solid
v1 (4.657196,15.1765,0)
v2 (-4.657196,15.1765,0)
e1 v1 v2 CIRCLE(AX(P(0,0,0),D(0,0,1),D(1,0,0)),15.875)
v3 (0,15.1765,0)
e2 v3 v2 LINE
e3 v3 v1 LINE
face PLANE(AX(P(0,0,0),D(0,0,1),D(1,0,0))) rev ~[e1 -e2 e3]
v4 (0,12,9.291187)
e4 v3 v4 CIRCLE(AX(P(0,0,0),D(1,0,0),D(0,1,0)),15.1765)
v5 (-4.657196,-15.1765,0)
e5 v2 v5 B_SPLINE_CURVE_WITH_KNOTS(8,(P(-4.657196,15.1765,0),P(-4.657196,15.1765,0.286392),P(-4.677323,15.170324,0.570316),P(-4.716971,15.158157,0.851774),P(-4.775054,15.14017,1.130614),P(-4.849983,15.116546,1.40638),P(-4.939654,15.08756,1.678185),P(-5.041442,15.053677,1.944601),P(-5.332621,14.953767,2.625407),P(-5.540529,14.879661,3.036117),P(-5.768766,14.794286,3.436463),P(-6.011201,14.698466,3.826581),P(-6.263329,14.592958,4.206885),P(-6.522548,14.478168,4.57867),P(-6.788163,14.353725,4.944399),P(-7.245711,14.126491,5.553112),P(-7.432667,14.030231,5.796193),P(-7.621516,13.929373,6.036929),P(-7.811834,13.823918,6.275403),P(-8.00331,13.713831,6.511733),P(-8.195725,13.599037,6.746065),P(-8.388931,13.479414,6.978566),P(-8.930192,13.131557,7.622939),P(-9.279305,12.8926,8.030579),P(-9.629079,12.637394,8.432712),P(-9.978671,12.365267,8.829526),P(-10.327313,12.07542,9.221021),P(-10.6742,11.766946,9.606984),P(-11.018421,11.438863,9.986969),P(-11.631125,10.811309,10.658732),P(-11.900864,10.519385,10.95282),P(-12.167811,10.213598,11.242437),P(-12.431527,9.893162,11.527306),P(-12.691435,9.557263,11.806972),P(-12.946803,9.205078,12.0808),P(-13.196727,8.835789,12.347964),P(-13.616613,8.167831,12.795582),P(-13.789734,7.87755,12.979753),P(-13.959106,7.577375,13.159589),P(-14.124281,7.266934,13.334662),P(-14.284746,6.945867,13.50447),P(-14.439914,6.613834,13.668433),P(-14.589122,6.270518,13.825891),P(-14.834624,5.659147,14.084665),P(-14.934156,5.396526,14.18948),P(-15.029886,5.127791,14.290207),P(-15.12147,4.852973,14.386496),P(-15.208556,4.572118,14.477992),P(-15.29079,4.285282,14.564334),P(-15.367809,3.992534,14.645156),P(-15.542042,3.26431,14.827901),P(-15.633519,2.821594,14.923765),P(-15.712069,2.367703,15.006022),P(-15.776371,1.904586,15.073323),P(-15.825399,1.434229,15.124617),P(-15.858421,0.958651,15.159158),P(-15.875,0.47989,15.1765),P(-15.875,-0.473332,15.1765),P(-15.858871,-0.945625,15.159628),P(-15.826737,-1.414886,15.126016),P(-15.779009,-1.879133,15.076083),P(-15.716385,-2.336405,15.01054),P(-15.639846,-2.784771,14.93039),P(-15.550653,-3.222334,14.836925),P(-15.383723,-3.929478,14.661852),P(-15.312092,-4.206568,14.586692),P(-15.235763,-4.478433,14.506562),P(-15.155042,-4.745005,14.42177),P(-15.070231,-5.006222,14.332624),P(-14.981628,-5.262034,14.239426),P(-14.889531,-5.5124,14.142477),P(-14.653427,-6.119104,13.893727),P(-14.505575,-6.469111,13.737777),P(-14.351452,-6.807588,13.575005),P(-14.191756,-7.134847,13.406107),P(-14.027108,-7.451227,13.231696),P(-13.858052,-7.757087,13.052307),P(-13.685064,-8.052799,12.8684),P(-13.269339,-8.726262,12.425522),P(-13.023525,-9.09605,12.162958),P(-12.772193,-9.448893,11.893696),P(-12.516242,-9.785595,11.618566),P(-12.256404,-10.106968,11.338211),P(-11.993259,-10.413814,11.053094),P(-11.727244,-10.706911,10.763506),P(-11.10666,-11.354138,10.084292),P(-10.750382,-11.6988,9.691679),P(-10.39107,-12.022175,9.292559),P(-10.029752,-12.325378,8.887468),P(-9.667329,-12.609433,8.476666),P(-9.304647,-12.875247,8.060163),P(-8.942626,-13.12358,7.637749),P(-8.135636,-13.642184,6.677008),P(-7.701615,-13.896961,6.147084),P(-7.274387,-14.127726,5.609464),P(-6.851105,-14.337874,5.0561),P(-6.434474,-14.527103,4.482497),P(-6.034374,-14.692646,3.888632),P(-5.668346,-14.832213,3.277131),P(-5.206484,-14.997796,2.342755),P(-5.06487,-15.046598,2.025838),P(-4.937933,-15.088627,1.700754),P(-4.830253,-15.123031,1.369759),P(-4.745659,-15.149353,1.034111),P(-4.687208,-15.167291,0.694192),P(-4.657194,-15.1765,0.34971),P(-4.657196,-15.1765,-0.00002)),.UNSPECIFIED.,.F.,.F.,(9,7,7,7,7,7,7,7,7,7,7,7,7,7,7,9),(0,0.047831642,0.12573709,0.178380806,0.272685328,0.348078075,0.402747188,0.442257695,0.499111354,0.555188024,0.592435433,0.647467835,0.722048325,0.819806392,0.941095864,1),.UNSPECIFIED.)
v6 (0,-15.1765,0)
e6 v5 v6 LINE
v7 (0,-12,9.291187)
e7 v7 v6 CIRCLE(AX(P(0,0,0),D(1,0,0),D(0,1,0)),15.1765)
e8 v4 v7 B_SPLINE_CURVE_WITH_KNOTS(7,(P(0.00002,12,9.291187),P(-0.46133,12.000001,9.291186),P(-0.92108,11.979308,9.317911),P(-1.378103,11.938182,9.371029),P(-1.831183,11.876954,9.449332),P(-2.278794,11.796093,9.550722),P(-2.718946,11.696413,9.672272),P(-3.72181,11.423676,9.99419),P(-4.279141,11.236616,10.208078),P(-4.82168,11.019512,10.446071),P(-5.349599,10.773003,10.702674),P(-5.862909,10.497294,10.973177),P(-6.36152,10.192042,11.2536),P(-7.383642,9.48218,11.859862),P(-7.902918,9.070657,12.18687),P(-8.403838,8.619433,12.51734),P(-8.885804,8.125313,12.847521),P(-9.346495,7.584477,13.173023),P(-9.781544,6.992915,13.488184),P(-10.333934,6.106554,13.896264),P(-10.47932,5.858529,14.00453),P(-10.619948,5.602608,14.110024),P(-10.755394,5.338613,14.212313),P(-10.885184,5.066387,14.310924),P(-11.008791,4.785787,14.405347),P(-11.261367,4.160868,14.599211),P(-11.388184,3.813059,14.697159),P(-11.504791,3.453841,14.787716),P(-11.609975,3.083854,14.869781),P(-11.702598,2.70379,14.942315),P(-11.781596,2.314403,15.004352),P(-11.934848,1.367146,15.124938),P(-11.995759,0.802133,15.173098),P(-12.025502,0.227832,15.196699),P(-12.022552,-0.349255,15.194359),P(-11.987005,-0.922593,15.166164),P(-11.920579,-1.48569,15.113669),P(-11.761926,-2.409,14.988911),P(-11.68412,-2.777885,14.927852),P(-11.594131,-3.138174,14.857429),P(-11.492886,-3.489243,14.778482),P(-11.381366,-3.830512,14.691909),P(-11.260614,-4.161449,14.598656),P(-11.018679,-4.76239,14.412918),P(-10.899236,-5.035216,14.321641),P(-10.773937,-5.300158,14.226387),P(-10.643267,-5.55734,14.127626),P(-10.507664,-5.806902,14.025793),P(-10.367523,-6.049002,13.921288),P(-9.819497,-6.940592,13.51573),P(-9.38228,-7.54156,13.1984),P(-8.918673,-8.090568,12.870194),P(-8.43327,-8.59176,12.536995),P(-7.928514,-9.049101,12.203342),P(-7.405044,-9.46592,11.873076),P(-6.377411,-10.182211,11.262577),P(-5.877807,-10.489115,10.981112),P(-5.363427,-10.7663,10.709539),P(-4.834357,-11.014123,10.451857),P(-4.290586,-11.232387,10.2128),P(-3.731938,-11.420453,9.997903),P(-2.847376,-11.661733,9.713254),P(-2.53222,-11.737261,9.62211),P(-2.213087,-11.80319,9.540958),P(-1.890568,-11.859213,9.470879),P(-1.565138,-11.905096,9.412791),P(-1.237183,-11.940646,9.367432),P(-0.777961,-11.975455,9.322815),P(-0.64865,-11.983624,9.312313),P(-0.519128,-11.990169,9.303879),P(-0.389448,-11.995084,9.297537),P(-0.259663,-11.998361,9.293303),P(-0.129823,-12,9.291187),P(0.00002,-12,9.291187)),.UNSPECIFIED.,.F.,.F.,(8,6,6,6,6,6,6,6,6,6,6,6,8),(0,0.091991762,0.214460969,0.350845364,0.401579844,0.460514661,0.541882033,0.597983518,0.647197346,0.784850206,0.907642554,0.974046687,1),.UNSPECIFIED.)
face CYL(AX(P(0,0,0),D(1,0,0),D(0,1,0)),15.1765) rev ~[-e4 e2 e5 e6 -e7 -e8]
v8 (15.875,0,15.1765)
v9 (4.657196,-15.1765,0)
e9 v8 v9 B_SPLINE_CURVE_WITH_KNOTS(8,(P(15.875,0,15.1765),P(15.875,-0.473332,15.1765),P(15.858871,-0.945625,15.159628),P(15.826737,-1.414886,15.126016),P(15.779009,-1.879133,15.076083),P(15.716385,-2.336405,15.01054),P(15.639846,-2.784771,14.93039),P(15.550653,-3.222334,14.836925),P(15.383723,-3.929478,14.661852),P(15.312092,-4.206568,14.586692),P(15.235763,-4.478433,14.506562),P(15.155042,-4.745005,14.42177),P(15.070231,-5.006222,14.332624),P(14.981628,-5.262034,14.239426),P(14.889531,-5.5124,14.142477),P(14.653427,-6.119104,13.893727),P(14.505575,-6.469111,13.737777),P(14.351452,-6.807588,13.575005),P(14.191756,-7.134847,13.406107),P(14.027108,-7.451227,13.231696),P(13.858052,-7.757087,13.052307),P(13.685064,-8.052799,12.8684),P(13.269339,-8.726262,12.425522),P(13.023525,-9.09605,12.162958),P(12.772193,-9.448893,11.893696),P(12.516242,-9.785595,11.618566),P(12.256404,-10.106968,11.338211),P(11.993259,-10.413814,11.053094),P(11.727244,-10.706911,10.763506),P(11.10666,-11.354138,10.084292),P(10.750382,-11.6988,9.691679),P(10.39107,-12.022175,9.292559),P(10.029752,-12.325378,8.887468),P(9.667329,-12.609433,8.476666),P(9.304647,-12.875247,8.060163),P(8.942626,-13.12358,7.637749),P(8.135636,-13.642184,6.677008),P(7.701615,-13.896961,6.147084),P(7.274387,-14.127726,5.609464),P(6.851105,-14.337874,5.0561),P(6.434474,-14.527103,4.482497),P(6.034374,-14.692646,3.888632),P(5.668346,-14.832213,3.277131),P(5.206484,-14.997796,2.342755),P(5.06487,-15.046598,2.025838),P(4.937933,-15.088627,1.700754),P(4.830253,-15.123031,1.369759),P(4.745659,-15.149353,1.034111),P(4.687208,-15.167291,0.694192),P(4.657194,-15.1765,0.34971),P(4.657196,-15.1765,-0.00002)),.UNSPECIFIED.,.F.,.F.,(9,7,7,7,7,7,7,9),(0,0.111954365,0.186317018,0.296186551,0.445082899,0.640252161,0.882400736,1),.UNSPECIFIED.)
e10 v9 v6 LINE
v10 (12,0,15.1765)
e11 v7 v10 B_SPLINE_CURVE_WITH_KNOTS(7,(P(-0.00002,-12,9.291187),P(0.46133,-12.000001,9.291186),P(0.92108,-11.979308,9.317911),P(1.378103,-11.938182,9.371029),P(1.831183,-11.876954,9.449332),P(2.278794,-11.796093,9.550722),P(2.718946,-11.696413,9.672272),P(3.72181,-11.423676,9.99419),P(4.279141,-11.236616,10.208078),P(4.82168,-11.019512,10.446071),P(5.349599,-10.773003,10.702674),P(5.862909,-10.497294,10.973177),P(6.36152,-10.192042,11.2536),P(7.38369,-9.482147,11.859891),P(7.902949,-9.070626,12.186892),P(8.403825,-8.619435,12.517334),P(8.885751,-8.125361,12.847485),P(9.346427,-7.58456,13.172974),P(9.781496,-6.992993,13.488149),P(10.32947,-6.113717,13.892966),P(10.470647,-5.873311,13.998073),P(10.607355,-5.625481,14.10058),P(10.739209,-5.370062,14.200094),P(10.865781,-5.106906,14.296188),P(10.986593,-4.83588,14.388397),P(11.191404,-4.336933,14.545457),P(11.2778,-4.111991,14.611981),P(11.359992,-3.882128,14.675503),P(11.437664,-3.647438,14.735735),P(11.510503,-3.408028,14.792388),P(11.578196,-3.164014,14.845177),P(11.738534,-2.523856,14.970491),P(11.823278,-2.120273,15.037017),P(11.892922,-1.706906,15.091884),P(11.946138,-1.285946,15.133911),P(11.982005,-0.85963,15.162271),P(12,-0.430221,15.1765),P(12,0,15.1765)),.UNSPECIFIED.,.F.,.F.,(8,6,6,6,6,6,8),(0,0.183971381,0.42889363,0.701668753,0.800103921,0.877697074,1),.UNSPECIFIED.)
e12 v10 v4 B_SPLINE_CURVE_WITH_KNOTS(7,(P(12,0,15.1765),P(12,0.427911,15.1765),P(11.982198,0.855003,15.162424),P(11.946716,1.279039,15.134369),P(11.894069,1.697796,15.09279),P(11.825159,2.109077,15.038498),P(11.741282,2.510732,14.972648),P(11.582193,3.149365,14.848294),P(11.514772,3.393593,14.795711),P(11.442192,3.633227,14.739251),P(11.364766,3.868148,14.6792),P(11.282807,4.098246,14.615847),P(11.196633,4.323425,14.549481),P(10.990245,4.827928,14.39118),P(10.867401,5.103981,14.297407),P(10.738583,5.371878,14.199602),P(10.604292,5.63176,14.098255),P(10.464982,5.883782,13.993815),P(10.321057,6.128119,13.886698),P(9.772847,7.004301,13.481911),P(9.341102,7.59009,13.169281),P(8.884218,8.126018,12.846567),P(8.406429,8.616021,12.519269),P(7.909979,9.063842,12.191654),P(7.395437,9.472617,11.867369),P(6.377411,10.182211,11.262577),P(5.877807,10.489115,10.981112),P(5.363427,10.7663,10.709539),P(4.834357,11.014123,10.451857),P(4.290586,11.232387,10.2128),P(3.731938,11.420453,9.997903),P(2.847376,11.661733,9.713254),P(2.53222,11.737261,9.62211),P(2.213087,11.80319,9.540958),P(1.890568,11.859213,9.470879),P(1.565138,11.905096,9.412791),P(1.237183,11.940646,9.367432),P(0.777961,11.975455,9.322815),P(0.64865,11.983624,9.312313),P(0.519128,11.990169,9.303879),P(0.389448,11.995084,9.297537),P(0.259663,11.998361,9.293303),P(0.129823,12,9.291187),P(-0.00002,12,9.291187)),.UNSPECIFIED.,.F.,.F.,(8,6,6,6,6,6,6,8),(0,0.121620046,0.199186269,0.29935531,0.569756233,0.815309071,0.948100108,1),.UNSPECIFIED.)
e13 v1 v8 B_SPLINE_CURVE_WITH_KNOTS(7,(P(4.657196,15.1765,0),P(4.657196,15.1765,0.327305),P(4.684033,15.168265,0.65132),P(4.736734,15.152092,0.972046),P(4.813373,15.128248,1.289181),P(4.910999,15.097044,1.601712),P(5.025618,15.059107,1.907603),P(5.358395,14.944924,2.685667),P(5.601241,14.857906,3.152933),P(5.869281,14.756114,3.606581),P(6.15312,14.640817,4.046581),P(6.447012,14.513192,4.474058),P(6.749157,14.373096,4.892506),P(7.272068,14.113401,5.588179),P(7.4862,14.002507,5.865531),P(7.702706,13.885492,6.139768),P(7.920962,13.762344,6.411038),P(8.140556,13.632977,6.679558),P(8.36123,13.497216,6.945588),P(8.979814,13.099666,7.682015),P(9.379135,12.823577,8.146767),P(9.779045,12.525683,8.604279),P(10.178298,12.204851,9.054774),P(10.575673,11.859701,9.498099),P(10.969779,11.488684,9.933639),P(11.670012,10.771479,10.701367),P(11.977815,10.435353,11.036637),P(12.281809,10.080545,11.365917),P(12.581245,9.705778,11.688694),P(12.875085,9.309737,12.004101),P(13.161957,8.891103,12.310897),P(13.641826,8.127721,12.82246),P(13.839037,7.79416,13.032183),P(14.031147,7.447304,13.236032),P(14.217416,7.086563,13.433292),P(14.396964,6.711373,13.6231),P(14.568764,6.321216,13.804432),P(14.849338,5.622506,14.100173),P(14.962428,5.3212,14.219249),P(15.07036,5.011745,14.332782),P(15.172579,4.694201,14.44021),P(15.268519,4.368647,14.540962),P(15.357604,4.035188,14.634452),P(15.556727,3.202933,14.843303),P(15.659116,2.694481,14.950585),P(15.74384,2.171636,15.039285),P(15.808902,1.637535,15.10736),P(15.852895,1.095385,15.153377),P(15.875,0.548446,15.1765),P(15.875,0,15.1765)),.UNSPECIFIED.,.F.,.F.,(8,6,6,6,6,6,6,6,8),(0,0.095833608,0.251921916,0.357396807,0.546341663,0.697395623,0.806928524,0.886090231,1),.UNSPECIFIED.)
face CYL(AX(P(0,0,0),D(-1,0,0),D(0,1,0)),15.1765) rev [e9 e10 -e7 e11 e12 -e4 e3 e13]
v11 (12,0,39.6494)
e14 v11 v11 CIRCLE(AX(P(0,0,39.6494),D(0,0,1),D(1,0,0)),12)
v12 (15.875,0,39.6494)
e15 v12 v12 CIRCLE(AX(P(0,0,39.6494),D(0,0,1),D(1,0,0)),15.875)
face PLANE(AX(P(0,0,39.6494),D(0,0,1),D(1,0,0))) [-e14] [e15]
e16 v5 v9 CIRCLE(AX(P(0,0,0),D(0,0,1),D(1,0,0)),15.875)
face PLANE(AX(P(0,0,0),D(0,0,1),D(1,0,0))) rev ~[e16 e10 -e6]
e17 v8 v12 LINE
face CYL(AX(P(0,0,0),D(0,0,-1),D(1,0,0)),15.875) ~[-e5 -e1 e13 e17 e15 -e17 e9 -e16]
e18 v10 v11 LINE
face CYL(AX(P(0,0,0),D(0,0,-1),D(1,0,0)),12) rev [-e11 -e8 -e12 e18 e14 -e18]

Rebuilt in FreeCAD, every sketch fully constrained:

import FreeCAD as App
import Part
import Sketcher
from FreeCAD import Vector
Q = App.Units.Quantity

doc = App.newDocument("Part")
body = doc.addObject("PartDesign::Body", "Body")

# Sketch on XY plane
sketch1 = body.newObject("Sketcher::SketchObject", "Sketch")
sketch1.AttachmentSupport = (doc.getObject("XY_Plane"), [""])
sketch1.MapMode = "FlatFace"
sketch1.addGeometry(Part.Circle(Vector(0, 0, 0), Vector(0, 0, 1), 16), False)
sketch1.addGeometry(Part.Circle(Vector(0, 0, 0), Vector(0, 0, 1), 12), False)
sketch1.addConstraint(Sketcher.Constraint("Coincident", 0, 3, -1, 1))
sketch1.addConstraint(Sketcher.Constraint("Coincident", 1, 3, -1, 1))
sketch1.addConstraint(Sketcher.Constraint("Diameter", 0, Q("1.25 in")))
sketch1.addConstraint(Sketcher.Constraint("Diameter", 1, 24.0))
pad1 = body.newObject("PartDesign::Pad", "Pad")
pad1.Profile = sketch1
pad1.Length = Q("1.561 in")

# Sketch on YZ plane
sketch2 = body.newObject("Sketcher::SketchObject", "Sketch001")
sketch2.AttachmentSupport = (doc.getObject("YZ_Plane"), [""])
sketch2.MapMode = "FlatFace"
sketch2.addGeometry(Part.Circle(Vector(0, 0, 0), Vector(0, 0, 1), 15), False)
sketch2.addConstraint(Sketcher.Constraint("Coincident", 0, 3, -1, 1))
sketch2.addConstraint(Sketcher.Constraint("Diameter", 0, Q("1.195 in")))
pocket1 = body.newObject("PartDesign::Pocket", "Pocket")
pocket1.Profile = sketch2
pocket1.Type = "ThroughAll"
pocket1.Midplane = True

doc.recompute()
